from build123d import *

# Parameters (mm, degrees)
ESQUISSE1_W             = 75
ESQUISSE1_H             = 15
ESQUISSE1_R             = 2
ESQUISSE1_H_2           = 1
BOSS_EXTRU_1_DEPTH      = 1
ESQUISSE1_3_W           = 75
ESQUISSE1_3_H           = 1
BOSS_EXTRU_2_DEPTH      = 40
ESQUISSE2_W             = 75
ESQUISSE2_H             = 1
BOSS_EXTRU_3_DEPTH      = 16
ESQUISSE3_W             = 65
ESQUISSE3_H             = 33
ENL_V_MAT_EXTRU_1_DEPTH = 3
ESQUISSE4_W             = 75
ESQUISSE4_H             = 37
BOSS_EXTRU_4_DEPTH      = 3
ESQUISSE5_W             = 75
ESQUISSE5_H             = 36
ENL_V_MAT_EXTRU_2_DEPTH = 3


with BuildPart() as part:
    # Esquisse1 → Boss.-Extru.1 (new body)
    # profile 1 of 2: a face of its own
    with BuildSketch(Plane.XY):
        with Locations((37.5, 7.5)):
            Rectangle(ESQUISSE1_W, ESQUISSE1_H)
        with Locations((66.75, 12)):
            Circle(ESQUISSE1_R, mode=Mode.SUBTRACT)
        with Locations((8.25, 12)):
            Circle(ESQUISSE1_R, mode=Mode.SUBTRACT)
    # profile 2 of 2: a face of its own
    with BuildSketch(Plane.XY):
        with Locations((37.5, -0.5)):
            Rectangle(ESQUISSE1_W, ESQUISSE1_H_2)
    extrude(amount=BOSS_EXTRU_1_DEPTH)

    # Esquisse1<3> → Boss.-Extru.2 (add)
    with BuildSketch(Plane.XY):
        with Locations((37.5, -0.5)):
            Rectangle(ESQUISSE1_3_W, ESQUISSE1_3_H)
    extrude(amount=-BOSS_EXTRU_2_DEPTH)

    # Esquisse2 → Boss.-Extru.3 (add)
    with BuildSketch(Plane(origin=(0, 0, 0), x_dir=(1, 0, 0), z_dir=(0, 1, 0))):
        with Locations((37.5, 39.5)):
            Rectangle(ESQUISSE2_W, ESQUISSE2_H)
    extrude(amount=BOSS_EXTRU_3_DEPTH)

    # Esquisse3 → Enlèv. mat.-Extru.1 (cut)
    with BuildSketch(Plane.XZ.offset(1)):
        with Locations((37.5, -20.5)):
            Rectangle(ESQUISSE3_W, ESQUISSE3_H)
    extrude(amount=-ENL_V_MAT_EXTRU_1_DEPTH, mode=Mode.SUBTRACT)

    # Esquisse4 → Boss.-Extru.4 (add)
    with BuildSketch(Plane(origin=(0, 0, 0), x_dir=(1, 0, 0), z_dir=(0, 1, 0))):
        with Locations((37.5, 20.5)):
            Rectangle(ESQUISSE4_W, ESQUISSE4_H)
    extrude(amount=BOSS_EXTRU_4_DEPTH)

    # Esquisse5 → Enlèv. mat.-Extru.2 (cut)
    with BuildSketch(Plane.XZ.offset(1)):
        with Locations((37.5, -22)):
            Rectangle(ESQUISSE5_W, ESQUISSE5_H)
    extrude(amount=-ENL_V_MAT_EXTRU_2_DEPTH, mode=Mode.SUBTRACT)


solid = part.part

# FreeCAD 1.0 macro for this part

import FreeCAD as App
import Part
import Sketcher
from FreeCAD import Vector

doc = App.newDocument("Part")
params = doc.addObject("Spreadsheet::Sheet", "Params")
for row, (alias, value) in enumerate([
    ("sketch1_diameter", "4 mm"),
    ("sketch1_width", "75 mm"),
    ("sketch1_height", "16 mm"),
    ("pad1_length", "1 mm"),
    ("sketch2_width", "75 mm"),
    ("sketch2_height", "1 mm"),
    ("pad2_length", "40 mm"),
    ("sketch3_width", "75 mm"),
    ("sketch3_height", "1 mm"),
    ("pad3_length", "16 mm"),
    ("sketch4_width", "65 mm"),
    ("sketch4_height", "33 mm"),
    ("pocket1_length", "3 mm"),
    ("sketch5_width", "75 mm"),
    ("sketch5_height", "37 mm"),
    ("pad4_length", "3 mm"),
    ("sketch6_width", "75 mm"),
    ("sketch6_height", "36 mm"),
    ("pocket2_length", "3 mm"),
], start=1):
    params.set(f"A{row}", alias)
    params.set(f"B{row}", "=" + value)
    params.setAlias(f"B{row}", alias)

body = doc.addObject("PartDesign::Body", "Body")

# Sketch on XY plane
sketch1 = doc.addObject("Sketcher::SketchObject", "Sketch")
body.addObject(sketch1)
sketch1.AttachmentSupport = (doc.XY_Plane, [""])
sketch1.MapMode = "FlatFace"
sketch1.addGeometry(Part.LineSegment(Vector(0, 15, 0), Vector(0, -1, 0)), False)
sketch1.addGeometry(Part.LineSegment(Vector(0, -1, 0), Vector(75, -1, 0)), False)
sketch1.addGeometry(Part.LineSegment(Vector(75, -1, 0), Vector(75, 15, 0)), False)
sketch1.addGeometry(Part.LineSegment(Vector(75, 15, 0), Vector(0, 15, 0)), False)
sketch1.addGeometry(Part.Circle(Vector(8.2, 12, 0), Vector(0, 0, 1), 2), False)
sketch1.addGeometry(Part.Circle(Vector(66.8, 12, 0), Vector(0, 0, 1), 2), False)
sketch1.addConstraint(Sketcher.Constraint("Coincident", 0, 2, 1, 1))
sketch1.addConstraint(Sketcher.Constraint("Coincident", 1, 2, 2, 1))
sketch1.addConstraint(Sketcher.Constraint("Coincident", 2, 2, 3, 1))
sketch1.addConstraint(Sketcher.Constraint("Coincident", 3, 2, 0, 1))
sketch1.addConstraint(Sketcher.Constraint("Vertical", 0))
sketch1.addConstraint(Sketcher.Constraint("Horizontal", 1))
sketch1.addConstraint(Sketcher.Constraint("Vertical", 2))
sketch1.addConstraint(Sketcher.Constraint("Horizontal", 3))
sketch1.addConstraint(Sketcher.Constraint("Equal", 4, 5))
sketch1.addConstraint(Sketcher.Constraint("PointOnObject", 0, 2, -2))
sketch1.addConstraint(Sketcher.Constraint("Horizontal", 4, 3, 5, 3))
sketch1.addConstraint(Sketcher.Constraint("Diameter", 4, 4.0))
sketch1.addConstraint(Sketcher.Constraint("DistanceX", 1, 1, 1, 2, 75.0))
sketch1.addConstraint(Sketcher.Constraint("DistanceY", 0, 2, 0, 1, 16.0))
sketch1.addConstraint(Sketcher.Constraint("DistanceY", -1, 1, 4, 3, 12.0))
sketch1.addConstraint(Sketcher.Constraint("DistanceY", 0, 2, -1, 1, 1.0))
sketch1.addConstraint(Sketcher.Constraint("DistanceX", 4, 3, 5, 3, 58.5))
sketch1.addConstraint(Sketcher.Constraint("DistanceX", -1, 1, 4, 3, 8.25))
sketch1.setExpression("Constraints[11]", "Params.sketch1_diameter")
sketch1.setExpression("Constraints[12]", "Params.sketch1_width")
sketch1.setExpression("Constraints[13]", "Params.sketch1_height")
pad1 = doc.addObject("PartDesign::Pad", "Pad")
body.addObject(pad1)
pad1.Profile = sketch1
pad1.setExpression("Length", "Params.pad1_length")

# Sketch on XY plane
sketch2 = doc.addObject("Sketcher::SketchObject", "Sketch001")
body.addObject(sketch2)
sketch2.AttachmentSupport = (doc.XY_Plane, [""])
sketch2.MapMode = "FlatFace"
sketch2.addGeometry(Part.LineSegment(Vector(0, 0, 0), Vector(0, -1, 0)), False)
sketch2.addGeometry(Part.LineSegment(Vector(0, -1, 0), Vector(75, -1, 0)), False)
sketch2.addGeometry(Part.LineSegment(Vector(75, -1, 0), Vector(75, 0, 0)), False)
sketch2.addGeometry(Part.LineSegment(Vector(75, 0, 0), Vector(0, 0, 0)), False)
sketch2.addConstraint(Sketcher.Constraint("Coincident", 0, 2, 1, 1))
sketch2.addConstraint(Sketcher.Constraint("Coincident", 1, 2, 2, 1))
sketch2.addConstraint(Sketcher.Constraint("Coincident", 2, 2, 3, 1))
sketch2.addConstraint(Sketcher.Constraint("Coincident", 3, 2, 0, 1))
sketch2.addConstraint(Sketcher.Constraint("Vertical", 0))
sketch2.addConstraint(Sketcher.Constraint("Horizontal", 1))
sketch2.addConstraint(Sketcher.Constraint("Vertical", 2))
sketch2.addConstraint(Sketcher.Constraint("Horizontal", 3))
sketch2.addConstraint(Sketcher.Constraint("Coincident", 3, 2, -1, 1))
sketch2.addConstraint(Sketcher.Constraint("DistanceX", 1, 1, 1, 2, 75.0))
sketch2.addConstraint(Sketcher.Constraint("DistanceY", 0, 2, 0, 1, 1.0))
sketch2.setExpression("Constraints[9]", "Params.sketch2_width")
sketch2.setExpression("Constraints[10]", "Params.sketch2_height")
pad2 = doc.addObject("PartDesign::Pad", "Pad001")
body.addObject(pad2)
pad2.Profile = sketch2
pad2.setExpression("Length", "Params.pad2_length")
pad2.Reversed = True

# Sketch on XZ plane
sketch3 = doc.addObject("Sketcher::SketchObject", "Sketch002")
body.addObject(sketch3)
sketch3.AttachmentSupport = (doc.XZ_Plane, [""])
sketch3.MapMode = "FlatFace"
sketch3.addGeometry(Part.LineSegment(Vector(0, -40, 0), Vector(0, -39, 0)), False)
sketch3.addGeometry(Part.LineSegment(Vector(0, -39, 0), Vector(75, -39, 0)), False)
sketch3.addGeometry(Part.LineSegment(Vector(75, -39, 0), Vector(75, -40, 0)), False)
sketch3.addGeometry(Part.LineSegment(Vector(75, -40, 0), Vector(0, -40, 0)), False)
sketch3.addConstraint(Sketcher.Constraint("Coincident", 0, 2, 1, 1))
sketch3.addConstraint(Sketcher.Constraint("Coincident", 1, 2, 2, 1))
sketch3.addConstraint(Sketcher.Constraint("Coincident", 2, 2, 3, 1))
sketch3.addConstraint(Sketcher.Constraint("Coincident", 3, 2, 0, 1))
sketch3.addConstraint(Sketcher.Constraint("Vertical", 0))
sketch3.addConstraint(Sketcher.Constraint("Horizontal", 1))
sketch3.addConstraint(Sketcher.Constraint("Vertical", 2))
sketch3.addConstraint(Sketcher.Constraint("Horizontal", 3))
sketch3.addConstraint(Sketcher.Constraint("PointOnObject", 0, 2, -2))
sketch3.addConstraint(Sketcher.Constraint("DistanceX", 1, 1, 1, 2, 75.0))
sketch3.addConstraint(Sketcher.Constraint("DistanceY", 0, 1, 0, 2, 1.0))
sketch3.addConstraint(Sketcher.Constraint("DistanceY", 0, 2, -1, 1, 39.0))
sketch3.setExpression("Constraints[9]", "Params.sketch3_width")
sketch3.setExpression("Constraints[10]", "Params.sketch3_height")
pad3 = doc.addObject("PartDesign::Pad", "Pad002")
body.addObject(pad3)
pad3.Profile = sketch3
pad3.setExpression("Length", "Params.pad3_length")
pad3.Reversed = True

# Sketch on XZ plane
sketch4 = doc.addObject("Sketcher::SketchObject", "Sketch003")
body.addObject(sketch4)
sketch4.AttachmentSupport = (doc.XZ_Plane, [""])
sketch4.MapMode = "FlatFace"
sketch4.AttachmentOffset = App.Placement(Vector(0, 0, 1), App.Rotation())
sketch4.addGeometry(Part.LineSegment(Vector(5, -4, 0), Vector(5, -37, 0)), False)
sketch4.addGeometry(Part.LineSegment(Vector(5, -37, 0), Vector(70, -37, 0)), False)
sketch4.addGeometry(Part.LineSegment(Vector(70, -37, 0), Vector(70, -4, 0)), False)
sketch4.addGeometry(Part.LineSegment(Vector(70, -4, 0), Vector(5, -4, 0)), False)
sketch4.addConstraint(Sketcher.Constraint("Coincident", 0, 2, 1, 1))
sketch4.addConstraint(Sketcher.Constraint("Coincident", 1, 2, 2, 1))
sketch4.addConstraint(Sketcher.Constraint("Coincident", 2, 2, 3, 1))
sketch4.addConstraint(Sketcher.Constraint("Coincident", 3, 2, 0, 1))
sketch4.addConstraint(Sketcher.Constraint("Vertical", 0))
sketch4.addConstraint(Sketcher.Constraint("Horizontal", 1))
sketch4.addConstraint(Sketcher.Constraint("Vertical", 2))
sketch4.addConstraint(Sketcher.Constraint("Horizontal", 3))
sketch4.addConstraint(Sketcher.Constraint("DistanceX", 1, 1, 1, 2, 65.0))
sketch4.addConstraint(Sketcher.Constraint("DistanceY", 0, 2, 0, 1, 33.0))
sketch4.addConstraint(Sketcher.Constraint("DistanceX", -1, 1, 0, 2, 5.0))
sketch4.addConstraint(Sketcher.Constraint("DistanceY", 0, 2, -1, 1, 37.0))
sketch4.setExpression("Constraints[8]", "Params.sketch4_width")
sketch4.setExpression("Constraints[9]", "Params.sketch4_height")
pocket1 = doc.addObject("PartDesign::Pocket", "Pocket")
body.addObject(pocket1)
pocket1.Profile = sketch4
pocket1.setExpression("Length", "Params.pocket1_length")

# Sketch on XZ plane
sketch5 = doc.addObject("Sketcher::SketchObject", "Sketch004")
body.addObject(sketch5)
sketch5.AttachmentSupport = (doc.XZ_Plane, [""])
sketch5.MapMode = "FlatFace"
sketch5.addGeometry(Part.LineSegment(Vector(0, -39, 0), Vector(0, -2, 0)), False)
sketch5.addGeometry(Part.LineSegment(Vector(0, -2, 0), Vector(75, -2, 0)), False)
sketch5.addGeometry(Part.LineSegment(Vector(75, -2, 0), Vector(75, -39, 0)), False)
sketch5.addGeometry(Part.LineSegment(Vector(75, -39, 0), Vector(0, -39, 0)), False)
sketch5.addConstraint(Sketcher.Constraint("Coincident", 0, 2, 1, 1))
sketch5.addConstraint(Sketcher.Constraint("Coincident", 1, 2, 2, 1))
sketch5.addConstraint(Sketcher.Constraint("Coincident", 2, 2, 3, 1))
sketch5.addConstraint(Sketcher.Constraint("Coincident", 3, 2, 0, 1))
sketch5.addConstraint(Sketcher.Constraint("Vertical", 0))
sketch5.addConstraint(Sketcher.Constraint("Horizontal", 1))
sketch5.addConstraint(Sketcher.Constraint("Vertical", 2))
sketch5.addConstraint(Sketcher.Constraint("Horizontal", 3))
sketch5.addConstraint(Sketcher.Constraint("PointOnObject", 0, 2, -2))
sketch5.addConstraint(Sketcher.Constraint("DistanceX", 1, 1, 1, 2, 75.0))
sketch5.addConstraint(Sketcher.Constraint("DistanceY", 0, 1, 0, 2, 37.0))
sketch5.addConstraint(Sketcher.Constraint("DistanceY", 0, 2, -1, 1, 2.0))
sketch5.setExpression("Constraints[9]", "Params.sketch5_width")
sketch5.setExpression("Constraints[10]", "Params.sketch5_height")
pad4 = doc.addObject("PartDesign::Pad", "Pad003")
body.addObject(pad4)
pad4.Profile = sketch5
pad4.setExpression("Length", "Params.pad4_length")
pad4.Reversed = True

# Sketch on XZ plane
sketch6 = doc.addObject("Sketcher::SketchObject", "Sketch005")
body.addObject(sketch6)
sketch6.AttachmentSupport = (doc.XZ_Plane, [""])
sketch6.MapMode = "FlatFace"
sketch6.AttachmentOffset = App.Placement(Vector(0, 0, 1), App.Rotation())
sketch6.addGeometry(Part.LineSegment(Vector(0, -4, 0), Vector(0, -40, 0)), False)
sketch6.addGeometry(Part.LineSegment(Vector(0, -40, 0), Vector(75, -40, 0)), False)
sketch6.addGeometry(Part.LineSegment(Vector(75, -40, 0), Vector(75, -4, 0)), False)
sketch6.addGeometry(Part.LineSegment(Vector(75, -4, 0), Vector(0, -4, 0)), False)
sketch6.addConstraint(Sketcher.Constraint("Coincident", 0, 2, 1, 1))
sketch6.addConstraint(Sketcher.Constraint("Coincident", 1, 2, 2, 1))
sketch6.addConstraint(Sketcher.Constraint("Coincident", 2, 2, 3, 1))
sketch6.addConstraint(Sketcher.Constraint("Coincident", 3, 2, 0, 1))
sketch6.addConstraint(Sketcher.Constraint("Vertical", 0))
sketch6.addConstraint(Sketcher.Constraint("Horizontal", 1))
sketch6.addConstraint(Sketcher.Constraint("Vertical", 2))
sketch6.addConstraint(Sketcher.Constraint("Horizontal", 3))
sketch6.addConstraint(Sketcher.Constraint("PointOnObject", 0, 2, -2))
sketch6.addConstraint(Sketcher.Constraint("DistanceX", 1, 1, 1, 2, 75.0))
sketch6.addConstraint(Sketcher.Constraint("DistanceY", 0, 2, 0, 1, 36.0))
sketch6.addConstraint(Sketcher.Constraint("DistanceY", 0, 2, -1, 1, 40.0))
sketch6.setExpression("Constraints[9]", "Params.sketch6_width")
sketch6.setExpression("Constraints[10]", "Params.sketch6_height")
pocket2 = doc.addObject("PartDesign::Pocket", "Pocket001")
body.addObject(pocket2)
pocket2.Profile = sketch6
pocket2.setExpression("Length", "Params.pocket2_length")

doc.recompute()
